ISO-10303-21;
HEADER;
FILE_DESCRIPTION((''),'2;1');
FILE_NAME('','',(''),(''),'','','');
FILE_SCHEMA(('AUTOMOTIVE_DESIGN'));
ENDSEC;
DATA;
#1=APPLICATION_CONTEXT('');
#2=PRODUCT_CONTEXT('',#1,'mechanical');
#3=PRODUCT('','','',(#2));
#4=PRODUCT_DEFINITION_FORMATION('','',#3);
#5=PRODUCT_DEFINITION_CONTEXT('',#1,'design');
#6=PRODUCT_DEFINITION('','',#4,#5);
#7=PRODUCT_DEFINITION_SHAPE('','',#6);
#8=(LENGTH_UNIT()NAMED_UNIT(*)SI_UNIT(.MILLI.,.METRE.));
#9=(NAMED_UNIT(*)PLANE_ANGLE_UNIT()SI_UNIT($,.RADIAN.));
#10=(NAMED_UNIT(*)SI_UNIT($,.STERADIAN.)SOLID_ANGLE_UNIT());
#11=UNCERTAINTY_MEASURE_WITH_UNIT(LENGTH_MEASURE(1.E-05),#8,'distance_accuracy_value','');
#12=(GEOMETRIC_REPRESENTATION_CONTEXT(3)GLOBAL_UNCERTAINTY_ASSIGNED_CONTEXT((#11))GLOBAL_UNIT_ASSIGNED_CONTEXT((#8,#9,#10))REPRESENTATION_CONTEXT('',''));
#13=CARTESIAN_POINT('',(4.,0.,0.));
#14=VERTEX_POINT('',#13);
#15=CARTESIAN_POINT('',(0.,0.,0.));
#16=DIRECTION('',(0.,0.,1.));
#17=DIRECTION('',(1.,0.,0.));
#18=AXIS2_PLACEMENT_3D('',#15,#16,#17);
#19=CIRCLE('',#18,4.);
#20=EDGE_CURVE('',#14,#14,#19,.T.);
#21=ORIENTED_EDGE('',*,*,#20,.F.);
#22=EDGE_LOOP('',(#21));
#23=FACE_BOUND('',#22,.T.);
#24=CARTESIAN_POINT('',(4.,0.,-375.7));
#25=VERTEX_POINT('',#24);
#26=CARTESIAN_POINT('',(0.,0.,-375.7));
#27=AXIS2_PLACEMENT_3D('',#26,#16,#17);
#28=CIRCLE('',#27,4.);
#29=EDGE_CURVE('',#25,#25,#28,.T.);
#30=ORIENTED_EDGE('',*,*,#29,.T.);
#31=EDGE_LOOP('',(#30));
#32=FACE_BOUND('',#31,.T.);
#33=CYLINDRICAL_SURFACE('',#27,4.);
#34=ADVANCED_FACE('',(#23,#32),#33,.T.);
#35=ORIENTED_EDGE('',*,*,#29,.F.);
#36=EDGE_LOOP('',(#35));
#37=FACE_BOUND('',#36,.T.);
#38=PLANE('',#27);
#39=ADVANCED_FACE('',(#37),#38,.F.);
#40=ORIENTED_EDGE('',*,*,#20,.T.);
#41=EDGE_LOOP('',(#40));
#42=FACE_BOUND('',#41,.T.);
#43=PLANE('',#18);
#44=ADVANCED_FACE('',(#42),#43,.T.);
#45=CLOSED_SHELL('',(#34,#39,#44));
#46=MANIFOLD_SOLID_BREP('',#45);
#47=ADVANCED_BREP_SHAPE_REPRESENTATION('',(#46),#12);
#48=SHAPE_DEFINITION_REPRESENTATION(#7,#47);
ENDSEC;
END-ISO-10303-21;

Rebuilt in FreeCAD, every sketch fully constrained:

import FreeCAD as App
import Part
import Sketcher

doc = App.newDocument("Part")
body = doc.addObject("PartDesign::Body", "Body")

# Sketch on XY plane
sketch1 = body.newObject("Sketcher::SketchObject", "Sketch")
sketch1.AttachmentSupport = (doc.getObject("XY_Plane"), [""])
sketch1.MapMode = "FlatFace"
sketch1.addGeometry(Part.Circle(App.Vector(0, 0, 0), App.Vector(0, 0, 1), 4), False)
sketch1.addConstraint([
    Sketcher.Constraint("Coincident", 0, 3, -1, 1),
    Sketcher.Constraint("Diameter", 0, 8.0),
])
pad1 = body.newObject("PartDesign::Pad", "Pad")
pad1.Profile = sketch1
pad1.Length = 375.7
pad1.Reversed = True

doc.recompute()
